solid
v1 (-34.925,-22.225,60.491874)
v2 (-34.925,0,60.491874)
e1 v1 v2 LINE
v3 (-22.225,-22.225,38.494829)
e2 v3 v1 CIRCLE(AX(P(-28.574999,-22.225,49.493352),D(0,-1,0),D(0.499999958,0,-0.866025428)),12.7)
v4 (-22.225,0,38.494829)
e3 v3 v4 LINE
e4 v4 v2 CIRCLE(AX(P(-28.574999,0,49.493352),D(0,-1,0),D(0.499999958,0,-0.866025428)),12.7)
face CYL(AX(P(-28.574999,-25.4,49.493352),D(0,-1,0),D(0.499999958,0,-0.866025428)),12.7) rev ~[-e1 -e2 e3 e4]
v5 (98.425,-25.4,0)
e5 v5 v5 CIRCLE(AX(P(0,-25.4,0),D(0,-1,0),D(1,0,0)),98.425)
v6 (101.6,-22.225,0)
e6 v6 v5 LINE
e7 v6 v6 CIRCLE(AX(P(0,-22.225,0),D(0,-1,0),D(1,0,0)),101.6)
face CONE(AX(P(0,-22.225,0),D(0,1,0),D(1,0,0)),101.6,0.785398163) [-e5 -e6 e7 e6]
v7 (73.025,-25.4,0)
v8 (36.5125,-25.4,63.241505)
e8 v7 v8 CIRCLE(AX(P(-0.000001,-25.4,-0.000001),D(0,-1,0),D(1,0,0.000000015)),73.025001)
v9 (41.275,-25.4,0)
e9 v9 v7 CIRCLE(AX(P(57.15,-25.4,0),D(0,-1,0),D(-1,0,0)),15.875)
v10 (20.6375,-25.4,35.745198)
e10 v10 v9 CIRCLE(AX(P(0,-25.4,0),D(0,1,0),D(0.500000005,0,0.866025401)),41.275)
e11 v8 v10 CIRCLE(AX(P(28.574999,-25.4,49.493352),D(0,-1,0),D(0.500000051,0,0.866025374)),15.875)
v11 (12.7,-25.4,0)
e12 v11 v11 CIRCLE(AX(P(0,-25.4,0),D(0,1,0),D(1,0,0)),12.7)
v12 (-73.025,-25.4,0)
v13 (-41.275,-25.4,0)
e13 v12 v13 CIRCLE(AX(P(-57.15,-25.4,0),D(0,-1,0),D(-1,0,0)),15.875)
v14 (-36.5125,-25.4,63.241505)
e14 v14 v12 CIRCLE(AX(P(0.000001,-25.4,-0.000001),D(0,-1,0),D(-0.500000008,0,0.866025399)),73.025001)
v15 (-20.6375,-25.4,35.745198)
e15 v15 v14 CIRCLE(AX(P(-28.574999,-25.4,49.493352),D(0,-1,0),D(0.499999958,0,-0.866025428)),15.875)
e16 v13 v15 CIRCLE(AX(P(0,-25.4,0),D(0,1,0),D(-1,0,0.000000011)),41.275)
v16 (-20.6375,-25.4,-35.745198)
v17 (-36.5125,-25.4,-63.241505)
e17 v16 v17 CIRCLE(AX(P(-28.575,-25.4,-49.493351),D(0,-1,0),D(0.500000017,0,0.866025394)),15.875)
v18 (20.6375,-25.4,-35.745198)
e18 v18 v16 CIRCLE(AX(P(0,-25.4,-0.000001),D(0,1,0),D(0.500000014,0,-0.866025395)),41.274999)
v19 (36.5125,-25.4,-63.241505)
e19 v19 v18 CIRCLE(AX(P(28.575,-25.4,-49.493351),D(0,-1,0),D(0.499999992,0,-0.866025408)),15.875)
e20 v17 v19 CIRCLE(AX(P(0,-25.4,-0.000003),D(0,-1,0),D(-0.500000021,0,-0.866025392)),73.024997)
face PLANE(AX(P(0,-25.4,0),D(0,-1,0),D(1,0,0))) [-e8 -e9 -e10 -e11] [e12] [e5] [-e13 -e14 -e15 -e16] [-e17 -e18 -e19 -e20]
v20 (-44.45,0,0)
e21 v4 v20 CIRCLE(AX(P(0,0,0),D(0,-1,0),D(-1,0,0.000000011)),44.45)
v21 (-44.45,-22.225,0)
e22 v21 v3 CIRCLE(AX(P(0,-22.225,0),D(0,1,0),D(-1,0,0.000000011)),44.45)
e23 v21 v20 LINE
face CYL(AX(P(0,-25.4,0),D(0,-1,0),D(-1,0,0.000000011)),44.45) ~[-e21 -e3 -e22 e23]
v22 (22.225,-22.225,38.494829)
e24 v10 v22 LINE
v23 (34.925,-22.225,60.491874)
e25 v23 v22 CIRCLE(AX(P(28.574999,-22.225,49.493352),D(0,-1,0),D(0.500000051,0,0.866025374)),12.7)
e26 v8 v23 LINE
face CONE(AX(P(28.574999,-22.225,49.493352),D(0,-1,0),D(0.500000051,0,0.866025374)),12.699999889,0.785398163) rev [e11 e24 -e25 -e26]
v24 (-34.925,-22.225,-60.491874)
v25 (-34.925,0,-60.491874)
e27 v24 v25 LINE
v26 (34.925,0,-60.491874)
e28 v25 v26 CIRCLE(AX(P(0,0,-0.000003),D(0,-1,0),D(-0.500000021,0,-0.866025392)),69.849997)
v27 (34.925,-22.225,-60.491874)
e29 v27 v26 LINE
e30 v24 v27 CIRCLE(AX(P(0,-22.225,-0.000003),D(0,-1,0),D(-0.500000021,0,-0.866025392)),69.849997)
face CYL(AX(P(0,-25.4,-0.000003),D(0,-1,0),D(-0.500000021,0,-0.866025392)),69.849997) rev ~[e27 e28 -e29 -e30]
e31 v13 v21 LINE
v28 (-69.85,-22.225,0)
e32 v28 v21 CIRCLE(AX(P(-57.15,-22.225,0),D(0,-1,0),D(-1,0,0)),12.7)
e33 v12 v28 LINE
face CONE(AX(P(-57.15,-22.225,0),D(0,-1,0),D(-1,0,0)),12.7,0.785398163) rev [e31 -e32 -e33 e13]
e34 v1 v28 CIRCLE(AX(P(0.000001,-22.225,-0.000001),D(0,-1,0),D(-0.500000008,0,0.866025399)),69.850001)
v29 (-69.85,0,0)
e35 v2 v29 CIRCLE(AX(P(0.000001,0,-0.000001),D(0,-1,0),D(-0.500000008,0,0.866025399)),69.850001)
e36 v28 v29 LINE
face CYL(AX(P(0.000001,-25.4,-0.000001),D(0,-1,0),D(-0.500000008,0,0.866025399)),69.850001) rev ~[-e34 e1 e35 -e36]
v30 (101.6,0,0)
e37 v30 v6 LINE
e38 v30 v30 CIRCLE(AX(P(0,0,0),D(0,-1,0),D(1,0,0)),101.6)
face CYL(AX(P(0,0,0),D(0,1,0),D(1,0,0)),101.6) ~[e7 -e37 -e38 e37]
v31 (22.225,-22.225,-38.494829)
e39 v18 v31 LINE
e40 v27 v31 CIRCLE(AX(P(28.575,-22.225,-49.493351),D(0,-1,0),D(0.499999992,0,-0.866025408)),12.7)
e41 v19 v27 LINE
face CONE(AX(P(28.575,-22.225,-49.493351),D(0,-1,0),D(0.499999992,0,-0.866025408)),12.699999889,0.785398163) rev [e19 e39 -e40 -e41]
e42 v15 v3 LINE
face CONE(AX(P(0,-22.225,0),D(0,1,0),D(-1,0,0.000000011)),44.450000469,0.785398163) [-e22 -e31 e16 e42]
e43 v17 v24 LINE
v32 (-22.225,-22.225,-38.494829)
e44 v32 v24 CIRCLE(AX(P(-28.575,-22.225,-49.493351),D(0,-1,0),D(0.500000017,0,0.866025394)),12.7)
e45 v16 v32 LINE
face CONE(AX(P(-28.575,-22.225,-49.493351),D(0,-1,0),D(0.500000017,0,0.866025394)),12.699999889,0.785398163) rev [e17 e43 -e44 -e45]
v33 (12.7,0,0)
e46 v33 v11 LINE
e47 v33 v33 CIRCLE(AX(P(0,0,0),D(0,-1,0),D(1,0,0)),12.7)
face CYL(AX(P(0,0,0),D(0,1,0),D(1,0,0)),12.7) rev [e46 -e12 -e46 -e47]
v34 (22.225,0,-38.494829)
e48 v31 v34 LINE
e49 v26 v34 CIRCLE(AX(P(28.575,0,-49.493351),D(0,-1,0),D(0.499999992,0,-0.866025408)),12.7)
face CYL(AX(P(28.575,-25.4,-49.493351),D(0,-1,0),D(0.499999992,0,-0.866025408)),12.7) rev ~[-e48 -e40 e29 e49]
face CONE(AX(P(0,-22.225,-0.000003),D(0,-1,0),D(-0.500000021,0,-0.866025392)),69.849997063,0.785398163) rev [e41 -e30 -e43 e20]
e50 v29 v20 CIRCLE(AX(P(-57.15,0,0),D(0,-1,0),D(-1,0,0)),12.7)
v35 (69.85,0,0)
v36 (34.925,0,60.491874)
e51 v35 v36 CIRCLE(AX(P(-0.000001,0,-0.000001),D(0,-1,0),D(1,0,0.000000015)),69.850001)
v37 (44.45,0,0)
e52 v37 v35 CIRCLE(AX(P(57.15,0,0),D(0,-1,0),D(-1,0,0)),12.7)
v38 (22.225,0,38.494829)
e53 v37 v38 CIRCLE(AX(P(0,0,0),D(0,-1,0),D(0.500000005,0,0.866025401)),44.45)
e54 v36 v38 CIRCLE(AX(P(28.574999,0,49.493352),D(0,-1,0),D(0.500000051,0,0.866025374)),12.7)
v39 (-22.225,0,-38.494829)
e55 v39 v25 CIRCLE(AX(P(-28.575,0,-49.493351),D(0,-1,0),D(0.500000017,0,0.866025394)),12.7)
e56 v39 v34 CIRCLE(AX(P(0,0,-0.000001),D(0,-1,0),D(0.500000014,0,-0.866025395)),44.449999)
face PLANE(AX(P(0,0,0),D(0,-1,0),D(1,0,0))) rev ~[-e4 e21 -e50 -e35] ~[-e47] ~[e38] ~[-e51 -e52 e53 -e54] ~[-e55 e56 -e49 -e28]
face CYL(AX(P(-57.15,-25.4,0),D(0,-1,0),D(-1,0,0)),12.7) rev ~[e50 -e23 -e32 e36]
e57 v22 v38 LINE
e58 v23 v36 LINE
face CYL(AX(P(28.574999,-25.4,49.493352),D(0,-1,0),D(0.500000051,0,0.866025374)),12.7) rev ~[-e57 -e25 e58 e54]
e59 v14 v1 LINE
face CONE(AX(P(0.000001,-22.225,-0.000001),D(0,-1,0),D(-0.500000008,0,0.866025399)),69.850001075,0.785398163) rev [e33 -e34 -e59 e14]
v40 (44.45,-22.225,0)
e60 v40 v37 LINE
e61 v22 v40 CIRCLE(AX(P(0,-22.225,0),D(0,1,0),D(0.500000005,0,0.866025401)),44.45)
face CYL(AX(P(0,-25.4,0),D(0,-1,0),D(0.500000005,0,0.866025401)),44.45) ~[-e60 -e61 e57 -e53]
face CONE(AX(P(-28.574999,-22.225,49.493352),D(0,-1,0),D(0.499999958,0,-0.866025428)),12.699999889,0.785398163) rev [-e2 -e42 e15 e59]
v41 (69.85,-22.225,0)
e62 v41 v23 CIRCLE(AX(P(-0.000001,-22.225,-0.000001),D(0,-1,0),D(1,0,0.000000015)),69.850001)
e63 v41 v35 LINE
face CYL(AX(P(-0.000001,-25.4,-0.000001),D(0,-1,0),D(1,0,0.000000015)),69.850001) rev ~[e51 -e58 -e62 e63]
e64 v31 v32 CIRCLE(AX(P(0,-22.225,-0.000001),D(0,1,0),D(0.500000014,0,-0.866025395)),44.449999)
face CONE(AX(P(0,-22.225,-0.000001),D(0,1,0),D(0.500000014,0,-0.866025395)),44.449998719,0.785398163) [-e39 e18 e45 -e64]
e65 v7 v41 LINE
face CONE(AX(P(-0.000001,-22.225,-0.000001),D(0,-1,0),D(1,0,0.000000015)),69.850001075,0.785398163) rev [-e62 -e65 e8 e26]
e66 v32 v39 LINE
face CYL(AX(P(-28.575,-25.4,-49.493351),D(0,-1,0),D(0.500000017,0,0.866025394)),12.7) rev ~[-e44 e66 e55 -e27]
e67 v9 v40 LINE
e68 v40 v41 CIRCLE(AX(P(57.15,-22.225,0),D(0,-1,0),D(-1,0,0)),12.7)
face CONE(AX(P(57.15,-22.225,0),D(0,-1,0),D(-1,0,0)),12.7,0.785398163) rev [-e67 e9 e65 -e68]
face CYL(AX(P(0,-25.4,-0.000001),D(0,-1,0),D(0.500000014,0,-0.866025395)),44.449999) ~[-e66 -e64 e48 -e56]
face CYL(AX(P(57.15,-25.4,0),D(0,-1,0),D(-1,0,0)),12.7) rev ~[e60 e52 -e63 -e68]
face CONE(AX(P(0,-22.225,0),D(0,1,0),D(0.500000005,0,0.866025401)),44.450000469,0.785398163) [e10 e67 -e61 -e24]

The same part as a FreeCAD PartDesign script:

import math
import FreeCAD as App
import Part
import Sketcher

V = App.Vector
Q = App.Units.Quantity


def edges_at(feature, points):
    """Names of the edges that pass closest to the given points."""
    edges = feature.Shape.Edges
    near = lambda p: min(range(len(edges)), key=lambda i: edges[i].distToShape(Part.Vertex(*p))[0])
    return sorted({f"Edge{near(p) + 1}" for p in points})

doc = App.newDocument("Part")
body = doc.addObject("PartDesign::Body", "Body")

# Sketch on XZ plane
sketch1 = body.newObject("Sketcher::SketchObject", "Sketch")
sketch1.AttachmentSupport = (doc.getObject("XZ_Plane"), [""])
sketch1.MapMode = "FlatFace"
sketch1.addGeometry(Part.Circle(V(0, 0, 0), V(0, 0, 1), 102), False)
sketch1.addConstraint([
    Sketcher.Constraint("Coincident", 0, 3, -1, 1),
    Sketcher.Constraint("Diameter", 0, Q("8 in")),
])
pad1 = body.newObject("PartDesign::Pad", "Pad")
pad1.Profile = sketch1
pad1.Length = Q("1 in")

# Sketch on XZ plane
sketch2 = body.newObject("Sketcher::SketchObject", "Sketch001")
sketch2.AttachmentSupport = (doc.getObject("XZ_Plane"), [""])
sketch2.MapMode = "FlatFace"
sketch2.addGeometry(Part.Circle(V(0, 0, 0), V(0, 0, 1), 13), False)
sketch2.addConstraint([
    Sketcher.Constraint("Coincident", 0, 3, -1, 1),
    Sketcher.Constraint("Diameter", 0, Q("1 in")),
])
pocket1 = body.newObject("PartDesign::Pocket", "Pocket")
pocket1.Profile = sketch2
pocket1.Type = "ThroughAll"
pocket1.Reversed = True

# Sketch on XZ plane
sketch3 = body.newObject("Sketcher::SketchObject", "Sketch002")
sketch3.AttachmentSupport = (doc.getObject("XZ_Plane"), [""])
sketch3.MapMode = "FlatFace"
sketch3.AttachmentOffset = App.Placement(V(0, 0, 1 * 25.4), App.Rotation())
sketch3.addGeometry([
    Part.ArcOfCircle(Part.Circle(V(0, 0, 0), V(0, 0, 1), 44), math.radians(0), math.radians(60)),  # 0
    Part.ArcOfCircle(Part.Circle(V(57, 0, 0), V(0, 0, 1), 13), math.radians(180), math.radians(360)),  # 1
    Part.ArcOfCircle(Part.Circle(V(0, 0, 0), V(0, 0, 1), 70), math.radians(0), math.radians(60)),  # 2
    Part.ArcOfCircle(Part.Circle(V(29, 49, 0), V(0, 0, 1), 13), math.radians(60), math.radians(240)),  # 3
    Part.ArcOfCircle(Part.Circle(V(0, 0, 0), V(0, 0, 1), 44), math.radians(120), math.radians(180)),  # 4
    Part.ArcOfCircle(Part.Circle(V(-29, 49, 0), V(0, 0, 1), 13), math.radians(-60), math.radians(120)),  # 5
    Part.ArcOfCircle(Part.Circle(V(0, 0, 0), V(0, 0, 1), 70), math.radians(120), math.radians(180)),  # 6
    Part.ArcOfCircle(Part.Circle(V(-57, 0, 0), V(0, 0, 1), 13), math.radians(180), math.radians(360)),  # 7
    Part.ArcOfCircle(Part.Circle(V(0, 0, 0), V(0, 0, 1), 44), math.radians(-120), math.radians(-60)),  # 8
    Part.ArcOfCircle(Part.Circle(V(-29, -49, 0), V(0, 0, 1), 13), math.radians(60), math.radians(240)),  # 9
    Part.ArcOfCircle(Part.Circle(V(0, 0, 0), V(0, 0, 1), 70), math.radians(-120), math.radians(-60)),  # 10
    Part.ArcOfCircle(Part.Circle(V(29, -49, 0), V(0, 0, 1), 13), math.radians(-60), math.radians(120)),  # 11
], False)
sketch3.addConstraint([
    Sketcher.Constraint("Tangent", 0, 1, 1, 1),
    Sketcher.Constraint("Tangent", 1, 2, 2, 1),
    Sketcher.Constraint("Tangent", 2, 2, 3, 1),
    Sketcher.Constraint("Tangent", 3, 2, 0, 2),
    Sketcher.Constraint("Tangent", 4, 1, 5, 1),
    Sketcher.Constraint("Tangent", 5, 2, 6, 1),
    Sketcher.Constraint("Tangent", 6, 2, 7, 1),
    Sketcher.Constraint("Tangent", 7, 2, 4, 2),
    Sketcher.Constraint("Tangent", 8, 1, 9, 1),
    Sketcher.Constraint("Tangent", 9, 2, 10, 1),
    Sketcher.Constraint("Tangent", 10, 2, 11, 1),
    Sketcher.Constraint("Tangent", 11, 2, 8, 2),
    Sketcher.Constraint("Coincident", 0, 3, -1, 1),
    Sketcher.Constraint("Coincident", 2, 3, -1, 1),
    Sketcher.Constraint("Coincident", 4, 3, -1, 1),
    Sketcher.Constraint("Coincident", 6, 3, -1, 1),
    Sketcher.Constraint("Coincident", 8, 3, -1, 1),
    Sketcher.Constraint("Coincident", 10, 3, -1, 1),
    Sketcher.Constraint("Equal", 0, 4),
    Sketcher.Constraint("Equal", 3, 5),
    Sketcher.Constraint("Equal", 4, 8),
    Sketcher.Constraint("Equal", 7, 9),
    Sketcher.Constraint("PointOnObject", 1, 3, -1),
    Sketcher.Constraint("PointOnObject", 7, 3, -1),
    Sketcher.Constraint("Horizontal", 3, 3, 5, 3),
    Sketcher.Constraint("Horizontal", 9, 3, 11, 3),
    Sketcher.Constraint("Vertical", 5, 3, 9, 3),
    Sketcher.Constraint("Radius", 1, Q("0.5 in")),
    Sketcher.Constraint("Radius", 0, Q("1.75 in")),
    Sketcher.Constraint("DistanceX", 5, 3, 2, 2, Q("2.5 in")),
])
pocket2 = body.newObject("PartDesign::Pocket", "Pocket001")
pocket2.Profile = sketch3
pocket2.Type = "ThroughAll"
doc.recompute()

chamfer = body.newObject("PartDesign::Chamfer", "Chamfer")
chamfer.Base = (pocket2, edges_at(pocket2, [
    (-101.6, -25.4, 0),
    (-60.492, -25.4, 34.925),
    (38.495, -25.4, 22.225),
    (0, -25.4, -44.45),
]))
chamfer.Size = Q("0.125 in")

doc.recompute()
